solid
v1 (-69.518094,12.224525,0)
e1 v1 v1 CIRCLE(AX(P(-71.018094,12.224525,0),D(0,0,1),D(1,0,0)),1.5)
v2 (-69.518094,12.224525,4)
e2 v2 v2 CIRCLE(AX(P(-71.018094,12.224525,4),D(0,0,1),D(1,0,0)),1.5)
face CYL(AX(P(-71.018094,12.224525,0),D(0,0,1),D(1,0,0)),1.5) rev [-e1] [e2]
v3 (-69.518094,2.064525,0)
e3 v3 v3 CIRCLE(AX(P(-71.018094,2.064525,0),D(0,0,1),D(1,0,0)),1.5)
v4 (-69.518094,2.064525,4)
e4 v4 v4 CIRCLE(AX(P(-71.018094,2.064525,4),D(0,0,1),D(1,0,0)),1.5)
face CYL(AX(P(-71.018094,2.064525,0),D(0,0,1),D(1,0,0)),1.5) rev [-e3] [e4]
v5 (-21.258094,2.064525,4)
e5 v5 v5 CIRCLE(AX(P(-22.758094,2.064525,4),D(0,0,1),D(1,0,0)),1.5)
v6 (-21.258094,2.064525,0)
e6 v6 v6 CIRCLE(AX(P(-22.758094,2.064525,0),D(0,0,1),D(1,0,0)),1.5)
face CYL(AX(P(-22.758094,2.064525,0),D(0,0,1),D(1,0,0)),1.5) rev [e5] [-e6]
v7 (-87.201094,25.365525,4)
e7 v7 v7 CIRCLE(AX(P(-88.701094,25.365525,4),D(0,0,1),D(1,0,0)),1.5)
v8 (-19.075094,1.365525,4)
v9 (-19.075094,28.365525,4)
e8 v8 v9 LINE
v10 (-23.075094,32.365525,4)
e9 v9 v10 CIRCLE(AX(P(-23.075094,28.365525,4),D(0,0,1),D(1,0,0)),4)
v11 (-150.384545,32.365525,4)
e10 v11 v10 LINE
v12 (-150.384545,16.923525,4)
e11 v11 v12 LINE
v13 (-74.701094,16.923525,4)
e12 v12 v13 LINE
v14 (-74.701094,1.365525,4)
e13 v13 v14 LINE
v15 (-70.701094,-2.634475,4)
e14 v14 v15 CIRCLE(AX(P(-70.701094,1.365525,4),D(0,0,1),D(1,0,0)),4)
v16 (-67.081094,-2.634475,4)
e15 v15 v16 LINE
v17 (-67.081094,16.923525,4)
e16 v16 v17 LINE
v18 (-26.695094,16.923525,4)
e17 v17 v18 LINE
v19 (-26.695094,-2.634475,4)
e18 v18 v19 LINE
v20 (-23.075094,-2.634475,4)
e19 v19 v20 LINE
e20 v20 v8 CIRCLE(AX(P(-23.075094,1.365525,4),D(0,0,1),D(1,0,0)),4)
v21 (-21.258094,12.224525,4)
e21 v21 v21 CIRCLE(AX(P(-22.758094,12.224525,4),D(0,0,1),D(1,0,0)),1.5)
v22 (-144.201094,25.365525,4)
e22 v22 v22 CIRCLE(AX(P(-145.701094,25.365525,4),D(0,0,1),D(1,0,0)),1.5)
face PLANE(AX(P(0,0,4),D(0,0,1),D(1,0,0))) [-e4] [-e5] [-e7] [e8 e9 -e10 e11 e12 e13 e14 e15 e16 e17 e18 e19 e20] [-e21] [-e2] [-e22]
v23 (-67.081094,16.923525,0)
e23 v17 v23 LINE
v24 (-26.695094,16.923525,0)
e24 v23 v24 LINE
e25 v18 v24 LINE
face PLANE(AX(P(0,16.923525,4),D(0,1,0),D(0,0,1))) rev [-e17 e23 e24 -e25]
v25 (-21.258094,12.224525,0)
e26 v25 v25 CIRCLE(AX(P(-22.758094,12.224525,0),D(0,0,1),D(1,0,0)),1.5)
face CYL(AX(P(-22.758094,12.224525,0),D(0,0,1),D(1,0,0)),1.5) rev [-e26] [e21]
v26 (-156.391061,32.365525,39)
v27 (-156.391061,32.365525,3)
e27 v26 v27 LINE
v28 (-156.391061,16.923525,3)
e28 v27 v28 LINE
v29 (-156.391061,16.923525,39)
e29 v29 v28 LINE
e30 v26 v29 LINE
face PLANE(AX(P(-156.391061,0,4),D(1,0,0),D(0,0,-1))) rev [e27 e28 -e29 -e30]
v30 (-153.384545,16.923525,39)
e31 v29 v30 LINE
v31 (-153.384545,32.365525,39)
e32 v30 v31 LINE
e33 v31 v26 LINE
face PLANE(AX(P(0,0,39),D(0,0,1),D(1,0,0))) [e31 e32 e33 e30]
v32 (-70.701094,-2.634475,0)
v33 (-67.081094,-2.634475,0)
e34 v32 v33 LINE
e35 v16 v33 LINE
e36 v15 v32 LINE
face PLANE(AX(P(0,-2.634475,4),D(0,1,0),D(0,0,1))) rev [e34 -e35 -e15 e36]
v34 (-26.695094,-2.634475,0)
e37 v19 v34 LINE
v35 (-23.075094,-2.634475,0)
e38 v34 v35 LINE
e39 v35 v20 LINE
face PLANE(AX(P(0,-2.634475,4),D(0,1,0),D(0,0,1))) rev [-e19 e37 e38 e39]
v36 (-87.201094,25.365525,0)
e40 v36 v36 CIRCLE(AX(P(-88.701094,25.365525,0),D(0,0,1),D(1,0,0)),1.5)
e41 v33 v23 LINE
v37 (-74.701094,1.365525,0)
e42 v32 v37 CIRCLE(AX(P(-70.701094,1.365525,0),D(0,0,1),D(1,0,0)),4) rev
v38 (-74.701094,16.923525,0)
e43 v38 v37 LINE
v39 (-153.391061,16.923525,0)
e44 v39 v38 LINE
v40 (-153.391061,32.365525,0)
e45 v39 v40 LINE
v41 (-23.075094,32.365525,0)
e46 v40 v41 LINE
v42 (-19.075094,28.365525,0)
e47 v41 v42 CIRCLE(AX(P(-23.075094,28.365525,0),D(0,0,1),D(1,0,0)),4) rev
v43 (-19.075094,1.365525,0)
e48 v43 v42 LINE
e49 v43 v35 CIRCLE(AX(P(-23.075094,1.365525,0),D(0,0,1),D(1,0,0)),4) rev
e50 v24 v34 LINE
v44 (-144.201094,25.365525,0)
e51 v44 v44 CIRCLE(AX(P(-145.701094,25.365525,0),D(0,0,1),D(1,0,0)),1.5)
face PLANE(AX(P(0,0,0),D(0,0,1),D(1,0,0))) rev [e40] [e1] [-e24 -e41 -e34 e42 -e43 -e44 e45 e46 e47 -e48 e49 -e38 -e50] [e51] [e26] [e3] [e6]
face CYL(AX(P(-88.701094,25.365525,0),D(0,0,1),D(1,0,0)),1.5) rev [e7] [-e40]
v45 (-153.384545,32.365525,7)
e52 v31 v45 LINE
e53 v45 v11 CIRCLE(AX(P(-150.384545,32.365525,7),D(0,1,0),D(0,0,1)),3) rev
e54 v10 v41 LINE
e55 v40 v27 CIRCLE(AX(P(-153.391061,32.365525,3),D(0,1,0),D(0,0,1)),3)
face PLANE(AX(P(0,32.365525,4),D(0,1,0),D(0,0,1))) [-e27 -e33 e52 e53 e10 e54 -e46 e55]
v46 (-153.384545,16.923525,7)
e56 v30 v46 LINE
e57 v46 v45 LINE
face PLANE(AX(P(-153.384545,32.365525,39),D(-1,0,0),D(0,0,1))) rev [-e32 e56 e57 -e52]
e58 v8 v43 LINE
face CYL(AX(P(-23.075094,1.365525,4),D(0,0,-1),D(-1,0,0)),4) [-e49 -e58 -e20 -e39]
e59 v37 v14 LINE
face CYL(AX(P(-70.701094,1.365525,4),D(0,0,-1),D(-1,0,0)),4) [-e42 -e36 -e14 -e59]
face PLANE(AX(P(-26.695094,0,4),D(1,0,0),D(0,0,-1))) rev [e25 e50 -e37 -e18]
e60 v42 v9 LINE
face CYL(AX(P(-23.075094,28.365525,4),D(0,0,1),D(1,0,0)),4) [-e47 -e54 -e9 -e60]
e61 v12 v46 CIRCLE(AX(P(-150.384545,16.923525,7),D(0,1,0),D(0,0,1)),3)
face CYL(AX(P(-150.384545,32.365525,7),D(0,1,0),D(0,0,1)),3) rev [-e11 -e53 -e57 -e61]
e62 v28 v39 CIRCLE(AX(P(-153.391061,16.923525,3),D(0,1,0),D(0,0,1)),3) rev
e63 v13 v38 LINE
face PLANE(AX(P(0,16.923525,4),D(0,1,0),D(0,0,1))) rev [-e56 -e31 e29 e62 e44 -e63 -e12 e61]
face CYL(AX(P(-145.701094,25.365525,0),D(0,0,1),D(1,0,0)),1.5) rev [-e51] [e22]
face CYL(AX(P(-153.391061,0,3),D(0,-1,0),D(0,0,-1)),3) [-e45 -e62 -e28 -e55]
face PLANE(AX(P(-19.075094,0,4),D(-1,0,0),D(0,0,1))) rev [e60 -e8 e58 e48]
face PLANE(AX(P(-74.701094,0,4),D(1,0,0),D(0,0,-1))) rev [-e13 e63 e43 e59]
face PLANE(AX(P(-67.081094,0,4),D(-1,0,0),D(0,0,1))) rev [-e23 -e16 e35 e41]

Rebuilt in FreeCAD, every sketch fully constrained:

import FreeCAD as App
import Part
import Sketcher

V = App.Vector
Q = App.Units.Quantity


def edges_at(feature, points):
    """Names of the edges that pass closest to the given points."""
    edges = feature.Shape.Edges
    near = lambda p: min(range(len(edges)), key=lambda i: edges[i].distToShape(Part.Vertex(*p))[0])
    return sorted({f"Edge{near(p) + 1}" for p in points})


def add_polygon(sketch, points):
    """Adds a closed chain of lines whose ends are joined by coincident constraints."""
    first, n = sketch.GeometryCount, len(points)
    for a, b in zip(points, points[1:] + points[:1]):
        sketch.addGeometry(Part.LineSegment(App.Vector(*a, 0), App.Vector(*b, 0)), False)
    for i in range(n):
        sketch.addConstraint(Sketcher.Constraint("Coincident", first + i, 2, first + (i + 1) % n, 1))

doc = App.newDocument("Part")
body = doc.addObject("PartDesign::Body", "Body")

# Sketch on XY plane
sketch1 = body.newObject("Sketcher::SketchObject", "Sketch")
sketch1.AttachmentSupport = (doc.getObject("XY_Plane"), [""])
sketch1.MapMode = "FlatFace"
add_polygon(sketch1, [(-67, -3), (-67, 17), (-27, 17), (-27, -3), (-19, -3), (-19, 32), (-156, 32), (-156, 17), (-75, 17), (-75, -3)])  # lines 0-9
sketch1.addConstraint([
    Sketcher.Constraint("Vertical", 0),
    Sketcher.Constraint("Horizontal", 1),
    Sketcher.Constraint("Vertical", 2),
    Sketcher.Constraint("Horizontal", 3),
    Sketcher.Constraint("Vertical", 4),
    Sketcher.Constraint("Horizontal", 5),
    Sketcher.Constraint("Vertical", 6),
    Sketcher.Constraint("Horizontal", 7),
    Sketcher.Constraint("Vertical", 8),
    Sketcher.Constraint("Horizontal", 9),
    Sketcher.Constraint("Horizontal", 1, 2, 6, 2),
    Sketcher.Constraint("Horizontal", 3, 2, 8, 2),
    Sketcher.Constraint("Equal", 3, 9),
    Sketcher.Constraint("DistanceY", 4, 1, 4, 2, Q("35 mm")),
    Sketcher.Constraint("DistanceX", 3, 1, 3, 2, Q("7.62 mm")),
    Sketcher.Constraint("DistanceX", 1, 1, 1, 2, Q("40.386 mm")),
    Sketcher.Constraint("DistanceY", 0, 1, 0, 2, Q("19.558 mm")),
    Sketcher.Constraint("DistanceX", 5, 2, 5, 1, Q("137.315967 mm")),
    Sketcher.Constraint("DistanceX", 5, 2, -1, 1, Q("156.391061 mm")),
    Sketcher.Constraint("DistanceY", -1, 1, 0, 2, Q("16.923525 mm")),
])
pad1 = body.newObject("PartDesign::Pad", "Pad")
pad1.Profile = sketch1
pad1.Length = 4
doc.recompute()

fillet = body.newObject("PartDesign::Fillet", "Fillet")
fillet.Base = (pad1, edges_at(pad1, [(-19.075, 32.366, 2), (-19.075, -2.634, 2), (-74.701, -2.634, 2)]))
fillet.Radius = 4

# Sketch on XY plane
sketch2 = body.newObject("Sketcher::SketchObject", "Sketch001")
sketch2.AttachmentSupport = (doc.getObject("XY_Plane"), [""])
sketch2.MapMode = "FlatFace"
sketch2.AttachmentOffset = App.Placement(V(0, 0, 4), App.Rotation())
sketch2.addGeometry([
    Part.Circle(V(-71, 12.2, 0), V(0, 0, 1), 1.5),
    Part.Circle(V(-22.8, 12.2, 0), V(0, 0, 1), 1.5),
    Part.Circle(V(-22.8, 2.1, 0), V(0, 0, 1), 1.5),
    Part.Circle(V(-71, 2.1, 0), V(0, 0, 1), 1.5),
], False)
sketch2.addConstraint([
    Sketcher.Constraint("Equal", 0, 1),
    Sketcher.Constraint("Equal", 1, 2),
    Sketcher.Constraint("Equal", 2, 3),
    Sketcher.Constraint("Horizontal", 0, 3, 1, 3),
    Sketcher.Constraint("Horizontal", 2, 3, 3, 3),
    Sketcher.Constraint("Vertical", 1, 3, 2, 3),
    Sketcher.Constraint("Vertical", 0, 3, 3, 3),
    Sketcher.Constraint("Diameter", 0, Q("3 mm")),
    Sketcher.Constraint("DistanceX", 0, 3, 1, 3, Q("48.26 mm")),
    Sketcher.Constraint("DistanceY", 2, 3, 1, 3, Q("10.16 mm")),
    Sketcher.Constraint("DistanceX", 0, 3, -1, 1, Q("71.018094 mm")),
    Sketcher.Constraint("DistanceY", -1, 1, 0, 3, Q("12.224525 mm")),
])
pocket1 = body.newObject("PartDesign::Pocket", "Pocket")
pocket1.Profile = sketch2
pocket1.Length = 4

# Sketch on XY plane
sketch3 = body.newObject("Sketcher::SketchObject", "Sketch002")
sketch3.AttachmentSupport = (doc.getObject("XY_Plane"), [""])
sketch3.MapMode = "FlatFace"
sketch3.AttachmentOffset = App.Placement(V(0, 0, 4), App.Rotation())
sketch3.addGeometry([
    Part.Circle(V(-145.7, 25.4, 0), V(0, 0, 1), 1.5),
    Part.Circle(V(-88.7, 25.4, 0), V(0, 0, 1), 1.5),
], False)
sketch3.addConstraint([
    Sketcher.Constraint("Equal", 0, 1),
    Sketcher.Constraint("Horizontal", 0, 3, 1, 3),
    Sketcher.Constraint("Diameter", 0, Q("3 mm")),
    Sketcher.Constraint("DistanceX", 0, 3, 1, 3, Q("57 mm")),
    Sketcher.Constraint("DistanceX", 0, 3, -1, 1, Q("145.701094 mm")),
    Sketcher.Constraint("DistanceY", -1, 1, 0, 3, Q("25.365525 mm")),
])
pocket2 = body.newObject("PartDesign::Pocket", "Pocket001")
pocket2.Profile = sketch3
pocket2.Length = 4

# Sketch on XY plane
sketch4 = body.newObject("Sketcher::SketchObject", "Sketch003")
sketch4.AttachmentSupport = (doc.getObject("XY_Plane"), [""])
sketch4.MapMode = "FlatFace"
sketch4.AttachmentOffset = App.Placement(V(0, 0, 4), App.Rotation())
add_polygon(sketch4, [(-156.4, 32.4), (-156.4, 16.9), (-153.4, 16.9), (-153.4, 32.4)])  # lines 0-3
sketch4.addConstraint([
    Sketcher.Constraint("Vertical", 0),
    Sketcher.Constraint("Horizontal", 1),
    Sketcher.Constraint("Vertical", 2),
    Sketcher.Constraint("Horizontal", 3),
    Sketcher.Constraint("DistanceY", 0, 2, 0, 1, Q("15.442 mm")),
    Sketcher.Constraint("DistanceX", 1, 1, 1, 2, Q("3.006516 mm")),
    Sketcher.Constraint("DistanceX", 0, 2, -1, 1, Q("156.391061 mm")),
    Sketcher.Constraint("DistanceY", -1, 1, 0, 2, Q("16.923525 mm")),
])
pad2 = body.newObject("PartDesign::Pad", "Pad001")
pad2.Profile = sketch4
pad2.Length = 35
doc.recompute()

fillet2 = body.newObject("PartDesign::Fillet", "Fillet001")
fillet2.Base = (pad2, edges_at(pad2, [(-153.385, 24.645, 4)]))
fillet2.Radius = 3
doc.recompute()

fillet3 = body.newObject("PartDesign::Fillet", "Fillet002")
fillet3.Base = (fillet2, edges_at(fillet2, [(-156.391, 24.645, 0)]))
fillet3.Radius = 3

doc.recompute()
